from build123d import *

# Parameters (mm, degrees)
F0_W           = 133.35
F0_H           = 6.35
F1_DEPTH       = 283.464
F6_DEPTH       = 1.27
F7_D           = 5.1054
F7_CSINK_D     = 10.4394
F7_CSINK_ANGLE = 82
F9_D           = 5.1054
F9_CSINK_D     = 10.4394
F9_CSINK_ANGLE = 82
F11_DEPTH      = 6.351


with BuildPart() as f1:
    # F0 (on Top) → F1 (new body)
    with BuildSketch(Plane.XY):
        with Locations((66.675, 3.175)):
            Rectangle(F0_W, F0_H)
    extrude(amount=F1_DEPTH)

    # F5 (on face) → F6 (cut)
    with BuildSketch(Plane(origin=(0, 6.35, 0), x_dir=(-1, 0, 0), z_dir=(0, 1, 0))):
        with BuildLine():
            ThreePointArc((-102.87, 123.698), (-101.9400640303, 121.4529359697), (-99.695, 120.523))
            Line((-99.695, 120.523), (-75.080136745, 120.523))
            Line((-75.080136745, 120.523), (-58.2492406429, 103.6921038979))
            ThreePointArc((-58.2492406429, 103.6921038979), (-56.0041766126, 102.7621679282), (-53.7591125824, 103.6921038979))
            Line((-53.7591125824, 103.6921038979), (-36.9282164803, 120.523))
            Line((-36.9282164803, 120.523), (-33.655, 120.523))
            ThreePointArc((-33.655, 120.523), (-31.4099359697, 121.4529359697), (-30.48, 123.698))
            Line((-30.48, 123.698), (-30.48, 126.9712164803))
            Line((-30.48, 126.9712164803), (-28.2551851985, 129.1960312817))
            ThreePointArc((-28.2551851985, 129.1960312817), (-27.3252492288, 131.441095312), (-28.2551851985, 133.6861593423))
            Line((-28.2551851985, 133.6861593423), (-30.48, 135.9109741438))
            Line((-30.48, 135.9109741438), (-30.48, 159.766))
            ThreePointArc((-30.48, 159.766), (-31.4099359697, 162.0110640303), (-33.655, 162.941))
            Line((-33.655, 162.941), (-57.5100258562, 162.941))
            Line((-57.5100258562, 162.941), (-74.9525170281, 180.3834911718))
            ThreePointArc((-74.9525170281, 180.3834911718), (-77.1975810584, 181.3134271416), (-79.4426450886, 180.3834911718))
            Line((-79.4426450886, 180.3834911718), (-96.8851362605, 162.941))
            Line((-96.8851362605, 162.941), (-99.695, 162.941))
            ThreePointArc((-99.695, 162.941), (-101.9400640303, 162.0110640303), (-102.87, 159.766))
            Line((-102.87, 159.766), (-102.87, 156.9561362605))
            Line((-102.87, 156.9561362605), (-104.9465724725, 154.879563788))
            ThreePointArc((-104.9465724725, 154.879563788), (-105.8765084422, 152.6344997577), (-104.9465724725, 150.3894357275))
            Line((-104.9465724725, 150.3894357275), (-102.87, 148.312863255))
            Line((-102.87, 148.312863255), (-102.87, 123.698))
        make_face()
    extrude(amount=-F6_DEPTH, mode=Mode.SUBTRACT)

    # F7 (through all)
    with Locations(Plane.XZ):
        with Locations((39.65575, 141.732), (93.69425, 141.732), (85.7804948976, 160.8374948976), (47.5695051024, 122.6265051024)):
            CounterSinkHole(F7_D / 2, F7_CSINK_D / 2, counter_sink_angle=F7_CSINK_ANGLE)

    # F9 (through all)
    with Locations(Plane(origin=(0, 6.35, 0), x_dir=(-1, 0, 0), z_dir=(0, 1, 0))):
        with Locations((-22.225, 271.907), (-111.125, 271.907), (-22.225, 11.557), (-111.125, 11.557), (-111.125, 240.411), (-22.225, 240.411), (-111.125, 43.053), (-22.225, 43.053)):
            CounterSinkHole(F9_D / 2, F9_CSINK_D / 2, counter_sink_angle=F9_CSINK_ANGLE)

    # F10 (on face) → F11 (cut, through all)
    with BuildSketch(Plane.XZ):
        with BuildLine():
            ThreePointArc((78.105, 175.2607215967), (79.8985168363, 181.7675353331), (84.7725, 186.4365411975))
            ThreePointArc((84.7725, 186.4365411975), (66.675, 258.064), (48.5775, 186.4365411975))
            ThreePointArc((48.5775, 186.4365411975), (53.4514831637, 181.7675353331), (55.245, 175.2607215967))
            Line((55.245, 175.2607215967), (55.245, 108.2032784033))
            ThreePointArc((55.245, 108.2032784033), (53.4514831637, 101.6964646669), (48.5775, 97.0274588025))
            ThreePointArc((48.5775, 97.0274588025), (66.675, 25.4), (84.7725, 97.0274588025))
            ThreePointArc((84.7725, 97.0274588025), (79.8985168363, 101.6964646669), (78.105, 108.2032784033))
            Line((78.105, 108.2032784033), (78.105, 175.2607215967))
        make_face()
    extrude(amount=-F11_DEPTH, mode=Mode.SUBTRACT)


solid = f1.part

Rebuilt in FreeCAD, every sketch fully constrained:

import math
import FreeCAD as App
import Part
import Sketcher
Q = App.Units.Quantity

doc = App.newDocument("Part")
body = doc.addObject("PartDesign::Body", "Body")

sketch1 = body.newObject("Sketcher::SketchObject", "Sketch")
sketch1.AttachmentSupport = (doc.getObject("XY_Plane"), [""])
sketch1.MapMode = "FlatFace"
sketch1.addGeometry(Part.LineSegment(App.Vector(0, 6, 0), App.Vector(0, 0, 0)), False)
sketch1.addGeometry(Part.LineSegment(App.Vector(0, 0, 0), App.Vector(133, 0, 0)), False)
sketch1.addGeometry(Part.LineSegment(App.Vector(133, 0, 0), App.Vector(133, 6, 0)), False)
sketch1.addGeometry(Part.LineSegment(App.Vector(133, 6, 0), App.Vector(0, 6, 0)), False)
sketch1.addConstraint(Sketcher.Constraint("Coincident", 0, 2, 1, 1))
sketch1.addConstraint(Sketcher.Constraint("Coincident", 1, 2, 2, 1))
sketch1.addConstraint(Sketcher.Constraint("Coincident", 2, 2, 3, 1))
sketch1.addConstraint(Sketcher.Constraint("Coincident", 3, 2, 0, 1))
sketch1.addConstraint(Sketcher.Constraint("Vertical", 0))
sketch1.addConstraint(Sketcher.Constraint("Horizontal", 1))
sketch1.addConstraint(Sketcher.Constraint("Vertical", 2))
sketch1.addConstraint(Sketcher.Constraint("Horizontal", 3))
sketch1.addConstraint(Sketcher.Constraint("Coincident", 0, 2, -1, 1))
sketch1.addConstraint(Sketcher.Constraint("DistanceX", 1, 1, 1, 2, Q("5.25 in")))
sketch1.addConstraint(Sketcher.Constraint("DistanceY", 0, 2, 0, 1, Q("0.25 in")))
pad1 = body.newObject("PartDesign::Pad", "Pad")
pad1.Profile = sketch1
pad1.Length = Q("11.16 in")

sketch2 = body.newObject("Sketcher::SketchObject", "Sketch001")
sketch2.AttachmentSupport = (doc.getObject("XZ_Plane"), [""])
sketch2.MapMode = "FlatFace"
sketch2.AttachmentOffset = App.Placement(App.Vector(0, 0, -0.25 * 25.4), App.Rotation())
sketch2.addGeometry(Part.ArcOfCircle(Part.Circle(App.Vector(99.7, 123.7, 0), App.Vector(0, 0, 1), 3.2), math.radians(-90), math.radians(0)), False)
sketch2.addGeometry(Part.LineSegment(App.Vector(99.7, 120.5, 0), App.Vector(75.1, 120.5, 0)), False)
sketch2.addGeometry(Part.LineSegment(App.Vector(75.1, 120.5, 0), App.Vector(58.2, 103.7, 0)), False)
sketch2.addGeometry(Part.ArcOfCircle(Part.Circle(App.Vector(56, 105.9, 0), App.Vector(0, 0, 1), 3.2), math.radians(-135), math.radians(-45)), False)
sketch2.addGeometry(Part.LineSegment(App.Vector(53.8, 103.7, 0), App.Vector(36.9, 120.5, 0)), False)
sketch2.addGeometry(Part.LineSegment(App.Vector(36.9, 120.5, 0), App.Vector(33.7, 120.5, 0)), False)
sketch2.addGeometry(Part.ArcOfCircle(Part.Circle(App.Vector(33.7, 123.7, 0), App.Vector(0, 0, 1), 3.2), math.radians(180), math.radians(270)), False)
sketch2.addGeometry(Part.LineSegment(App.Vector(30.5, 123.7, 0), App.Vector(30.5, 127, 0)), False)
sketch2.addGeometry(Part.LineSegment(App.Vector(30.5, 127, 0), App.Vector(28.3, 129.2, 0)), False)
sketch2.addGeometry(Part.ArcOfCircle(Part.Circle(App.Vector(30.5, 131.4, 0), App.Vector(0, 0, 1), 3.2), math.radians(135), math.radians(225)), False)
sketch2.addGeometry(Part.LineSegment(App.Vector(28.3, 133.7, 0), App.Vector(30.5, 135.9, 0)), False)
sketch2.addGeometry(Part.LineSegment(App.Vector(30.5, 135.9, 0), App.Vector(30.5, 159.8, 0)), False)
sketch2.addGeometry(Part.ArcOfCircle(Part.Circle(App.Vector(33.7, 159.8, 0), App.Vector(0, 0, 1), 3.2), math.radians(90), math.radians(180)), False)
sketch2.addGeometry(Part.LineSegment(App.Vector(33.7, 162.9, 0), App.Vector(57.5, 162.9, 0)), False)
sketch2.addGeometry(Part.LineSegment(App.Vector(57.5, 162.9, 0), App.Vector(75, 180.4, 0)), False)
sketch2.addGeometry(Part.ArcOfCircle(Part.Circle(App.Vector(77.2, 178.1, 0), App.Vector(0, 0, 1), 3.2), math.radians(45), math.radians(135)), False)
sketch2.addGeometry(Part.LineSegment(App.Vector(79.4, 180.4, 0), App.Vector(96.9, 162.9, 0)), False)
sketch2.addGeometry(Part.LineSegment(App.Vector(96.9, 162.9, 0), App.Vector(99.7, 162.9, 0)), False)
sketch2.addGeometry(Part.ArcOfCircle(Part.Circle(App.Vector(99.7, 159.8, 0), App.Vector(0, 0, 1), 3.2), math.radians(0), math.radians(90)), False)
sketch2.addGeometry(Part.LineSegment(App.Vector(102.9, 159.8, 0), App.Vector(102.9, 157, 0)), False)
sketch2.addGeometry(Part.LineSegment(App.Vector(102.9, 157, 0), App.Vector(104.9, 154.9, 0)), False)
sketch2.addGeometry(Part.ArcOfCircle(Part.Circle(App.Vector(102.7, 152.6, 0), App.Vector(0, 0, 1), 3.2), math.radians(-45), math.radians(45)), False)
sketch2.addGeometry(Part.LineSegment(App.Vector(104.9, 150.4, 0), App.Vector(102.9, 148.3, 0)), False)
sketch2.addGeometry(Part.LineSegment(App.Vector(102.9, 148.3, 0), App.Vector(102.9, 123.7, 0)), False)
sketch2.addConstraint(Sketcher.Constraint("Tangent", 0, 1, 1, 1))
sketch2.addConstraint(Sketcher.Constraint("Coincident", 1, 2, 2, 1))
sketch2.addConstraint(Sketcher.Constraint("Tangent", 2, 2, 3, 2))
sketch2.addConstraint(Sketcher.Constraint("Tangent", 3, 1, 4, 1))
sketch2.addConstraint(Sketcher.Constraint("Coincident", 4, 2, 5, 1))
sketch2.addConstraint(Sketcher.Constraint("Tangent", 5, 2, 6, 2))
sketch2.addConstraint(Sketcher.Constraint("Tangent", 6, 1, 7, 1))
sketch2.addConstraint(Sketcher.Constraint("Coincident", 7, 2, 8, 1))
sketch2.addConstraint(Sketcher.Constraint("Tangent", 8, 2, 9, 2))
sketch2.addConstraint(Sketcher.Constraint("Tangent", 9, 1, 10, 1))
sketch2.addConstraint(Sketcher.Constraint("Coincident", 10, 2, 11, 1))
sketch2.addConstraint(Sketcher.Constraint("Tangent", 11, 2, 12, 2))
sketch2.addConstraint(Sketcher.Constraint("Tangent", 12, 1, 13, 1))
sketch2.addConstraint(Sketcher.Constraint("Coincident", 13, 2, 14, 1))
sketch2.addConstraint(Sketcher.Constraint("Tangent", 14, 2, 15, 2))
sketch2.addConstraint(Sketcher.Constraint("Tangent", 15, 1, 16, 1))
sketch2.addConstraint(Sketcher.Constraint("Coincident", 16, 2, 17, 1))
sketch2.addConstraint(Sketcher.Constraint("Tangent", 17, 2, 18, 2))
sketch2.addConstraint(Sketcher.Constraint("Tangent", 18, 1, 19, 1))
sketch2.addConstraint(Sketcher.Constraint("Coincident", 19, 2, 20, 1))
sketch2.addConstraint(Sketcher.Constraint("Tangent", 20, 2, 21, 2))
sketch2.addConstraint(Sketcher.Constraint("Tangent", 21, 1, 22, 1))
sketch2.addConstraint(Sketcher.Constraint("Coincident", 22, 2, 23, 1))
sketch2.addConstraint(Sketcher.Constraint("Tangent", 23, 2, 0, 2))
sketch2.addConstraint(Sketcher.Constraint("Horizontal", 1))
sketch2.addConstraint(Sketcher.Constraint("Horizontal", 5))
sketch2.addConstraint(Sketcher.Constraint("Vertical", 7))
sketch2.addConstraint(Sketcher.Constraint("Vertical", 11))
sketch2.addConstraint(Sketcher.Constraint("Horizontal", 13))
sketch2.addConstraint(Sketcher.Constraint("Horizontal", 17))
sketch2.addConstraint(Sketcher.Constraint("Vertical", 19))
sketch2.addConstraint(Sketcher.Constraint("Vertical", 23))
sketch2.addConstraint(Sketcher.Constraint("Equal", 0, 3))
sketch2.addConstraint(Sketcher.Constraint("Equal", 3, 6))
sketch2.addConstraint(Sketcher.Constraint("Equal", 6, 9))
sketch2.addConstraint(Sketcher.Constraint("Equal", 9, 12))
sketch2.addConstraint(Sketcher.Constraint("Equal", 12, 15))
sketch2.addConstraint(Sketcher.Constraint("Equal", 15, 18))
sketch2.addConstraint(Sketcher.Constraint("Equal", 18, 21))
sketch2.addConstraint(Sketcher.Constraint("Perpendicular", 2, 4))
sketch2.addConstraint(Sketcher.Constraint("Parallel", 4, 8))
sketch2.addConstraint(Sketcher.Constraint("Perpendicular", 8, 10))
sketch2.addConstraint(Sketcher.Constraint("Parallel", 10, 14))
sketch2.addConstraint(Sketcher.Constraint("Perpendicular", 14, 16))
sketch2.addConstraint(Sketcher.Constraint("Parallel", 16, 20))
sketch2.addConstraint(Sketcher.Constraint("Perpendicular", 20, 22))
sketch2.addConstraint(Sketcher.Constraint("Horizontal", 0, 3, 6, 3))
sketch2.addConstraint(Sketcher.Constraint("Horizontal", 12, 3, 18, 3))
sketch2.addConstraint(Sketcher.Constraint("Horizontal", 2, 2, 3, 1))
sketch2.addConstraint(Sketcher.Constraint("Vertical", 6, 3, 12, 3))
sketch2.addConstraint(Sketcher.Constraint("Vertical", 0, 3, 18, 3))
sketch2.addConstraint(Sketcher.Constraint("Equal", 5, 7))
sketch2.addConstraint(Sketcher.Constraint("Equal", 13, 11))
sketch2.addConstraint(Sketcher.Constraint("Equal", 17, 19))
sketch2.addConstraint(Sketcher.Constraint("Equal", 1, 23))
sketch2.addConstraint(Sketcher.Constraint("Radius", 0, Q("0.125 in")))
sketch2.addConstraint(Sketcher.Constraint("DistanceX", -1, 1, 6, 1, Q("1.2 in")))
sketch2.addConstraint(Sketcher.Constraint("DistanceX", 6, 3, 0, 3, Q("2.6 in")))
sketch2.addConstraint(Sketcher.Constraint("DistanceY", -1, 1, 0, 3, Q("4.87 in")))
sketch2.addConstraint(Sketcher.Constraint("DistanceY", -1, 1, 12, 3, Q("6.29 in")))
sketch2.addConstraint(Sketcher.Constraint("DistanceY", -1, 1, 21, 3, 152.6345))
sketch2.addConstraint(Sketcher.Constraint("DistanceY", 21, 1, 19, 2, 6.566701))
sketch2.addConstraint(Sketcher.Constraint("Distance", 2, 23.802482))
sketch2.addConstraint(Sketcher.Constraint("DistanceX", 13, 1, 13, 2, 23.855026))
pocket1 = body.newObject("PartDesign::Pocket", "Pocket")
pocket1.Profile = sketch2
pocket1.Length = Q("0.05 in")
pocket1.Reversed = True

sketch3 = body.newObject("Sketcher::SketchObject", "Sketch002")
sketch3.AttachmentSupport = (doc.getObject("XZ_Plane"), [""])
sketch3.MapMode = "FlatFace"
sketch3.addGeometry(Part.Circle(App.Vector(39.7, 141.7, 0), App.Vector(0, 0, 1), 2.6), False)
sketch3.addGeometry(Part.Circle(App.Vector(93.7, 141.7, 0), App.Vector(0, 0, 1), 2.6), False)
sketch3.addGeometry(Part.Circle(App.Vector(85.8, 160.8, 0), App.Vector(0, 0, 1), 2.6), False)
sketch3.addGeometry(Part.Circle(App.Vector(47.6, 122.6, 0), App.Vector(0, 0, 1), 2.6), False)
sketch3.addConstraint(Sketcher.Constraint("Equal", 0, 1))
sketch3.addConstraint(Sketcher.Constraint("Equal", 1, 2))
sketch3.addConstraint(Sketcher.Constraint("Equal", 2, 3))
sketch3.addConstraint(Sketcher.Constraint("Horizontal", 0, 3, 1, 3))
sketch3.addConstraint(Sketcher.Constraint("Diameter", 0, Q("0.201 in")))
sketch3.addConstraint(Sketcher.Constraint("DistanceY", -1, 1, 0, 3, Q("5.58 in")))
sketch3.addConstraint(Sketcher.Constraint("DistanceX", 0, 3, 1, 3, Q("2.1275 in")))
sketch3.addConstraint(Sketcher.Constraint("DistanceX", -1, 1, 0, 3, 39.65575))
sketch3.addConstraint(Sketcher.Constraint("DistanceX", 3, 3, 2, 3, 38.21099))
sketch3.addConstraint(Sketcher.Constraint("DistanceY", 3, 3, 2, 3, 38.21099))
sketch3.addConstraint(Sketcher.Constraint("DistanceX", -1, 1, 2, 3, 85.780495))
sketch3.addConstraint(Sketcher.Constraint("DistanceY", -1, 1, 2, 3, 160.837495))
doc.recompute()
hole = body.newObject("PartDesign::Hole", "Hole")
hole.Profile = sketch3
hole.ThreadType = "None"
hole.Diameter = Q("0.201 in")
hole.DepthType = "ThroughAll"
hole.HoleCutType = "Countersink"
hole.HoleCutDiameter = Q("0.411 in")
hole.HoleCutCountersinkAngle = 82

sketch4 = body.newObject("Sketcher::SketchObject", "Sketch003")
sketch4.AttachmentSupport = (doc.getObject("XZ_Plane"), [""])
sketch4.MapMode = "FlatFace"
sketch4.AttachmentOffset = App.Placement(App.Vector(0, 0, -0.25 * 25.4), App.Rotation())
sketch4.addGeometry(Part.Circle(App.Vector(22.2, 271.9, 0), App.Vector(0, 0, 1), 2.6), False)
sketch4.addGeometry(Part.Circle(App.Vector(111.1, 271.9, 0), App.Vector(0, 0, 1), 2.6), False)
sketch4.addGeometry(Part.Circle(App.Vector(22.2, 11.6, 0), App.Vector(0, 0, 1), 2.6), False)
sketch4.addGeometry(Part.Circle(App.Vector(111.1, 11.6, 0), App.Vector(0, 0, 1), 2.6), False)
sketch4.addGeometry(Part.Circle(App.Vector(111.1, 240.4, 0), App.Vector(0, 0, 1), 2.6), False)
sketch4.addGeometry(Part.Circle(App.Vector(22.2, 240.4, 0), App.Vector(0, 0, 1), 2.6), False)
sketch4.addGeometry(Part.Circle(App.Vector(111.1, 43.1, 0), App.Vector(0, 0, 1), 2.6), False)
sketch4.addGeometry(Part.Circle(App.Vector(22.2, 43.1, 0), App.Vector(0, 0, 1), 2.6), False)
sketch4.addConstraint(Sketcher.Constraint("Equal", 0, 1))
sketch4.addConstraint(Sketcher.Constraint("Equal", 1, 2))
sketch4.addConstraint(Sketcher.Constraint("Equal", 2, 3))
sketch4.addConstraint(Sketcher.Constraint("Equal", 3, 4))
sketch4.addConstraint(Sketcher.Constraint("Equal", 4, 5))
sketch4.addConstraint(Sketcher.Constraint("Equal", 5, 6))
sketch4.addConstraint(Sketcher.Constraint("Equal", 6, 7))
sketch4.addConstraint(Sketcher.Constraint("Horizontal", 0, 3, 1, 3))
sketch4.addConstraint(Sketcher.Constraint("Horizontal", 2, 3, 3, 3))
sketch4.addConstraint(Sketcher.Constraint("Horizontal", 4, 3, 5, 3))
sketch4.addConstraint(Sketcher.Constraint("Horizontal", 6, 3, 7, 3))
sketch4.addConstraint(Sketcher.Constraint("Vertical", 0, 3, 2, 3))
sketch4.addConstraint(Sketcher.Constraint("Vertical", 1, 3, 3, 3))
sketch4.addConstraint(Sketcher.Constraint("Vertical", 3, 3, 4, 3))
sketch4.addConstraint(Sketcher.Constraint("Vertical", 2, 3, 5, 3))
sketch4.addConstraint(Sketcher.Constraint("Vertical", 4, 3, 6, 3))
sketch4.addConstraint(Sketcher.Constraint("Vertical", 5, 3, 7, 3))
sketch4.addConstraint(Sketcher.Constraint("Diameter", 0, Q("0.201 in")))
sketch4.addConstraint(Sketcher.Constraint("DistanceX", 0, 3, 1, 3, Q("3.5 in")))
sketch4.addConstraint(Sketcher.Constraint("DistanceY", 2, 3, 0, 3, Q("10.25 in")))
sketch4.addConstraint(Sketcher.Constraint("DistanceY", 4, 3, 1, 3, Q("1.24 in")))
sketch4.addConstraint(Sketcher.Constraint("DistanceY", 3, 3, 6, 3, Q("1.24 in")))
sketch4.addConstraint(Sketcher.Constraint("DistanceX", -1, 1, 0, 3, Q("0.875 in")))
sketch4.addConstraint(Sketcher.Constraint("DistanceY", -1, 1, 0, 3, Q("10.705 in")))
doc.recompute()
hole2 = body.newObject("PartDesign::Hole", "Hole001")
hole2.Profile = sketch4
hole2.ThreadType = "None"
hole2.Diameter = Q("0.201 in")
hole2.DepthType = "ThroughAll"
hole2.HoleCutType = "Countersink"
hole2.HoleCutDiameter = Q("0.411 in")
hole2.HoleCutCountersinkAngle = 82
hole2.Reversed = True

sketch5 = body.newObject("Sketcher::SketchObject", "Sketch004")
sketch5.AttachmentSupport = (doc.getObject("XZ_Plane"), [""])
sketch5.MapMode = "FlatFace"
sketch5.addGeometry(Part.ArcOfCircle(Part.Circle(App.Vector(91, 175, 0), App.Vector(0, 0, 1), 13), math.radians(118), math.radians(180)), False)
sketch5.addGeometry(Part.ArcOfCircle(Part.Circle(App.Vector(67, 220, 0), App.Vector(0, 0, 1), 38), math.radians(-62), math.radians(242)), False)
sketch5.addGeometry(Part.ArcOfCircle(Part.Circle(App.Vector(43, 175, 0), App.Vector(0, 0, 1), 13), math.radians(0), math.radians(62)), False)
sketch5.addGeometry(Part.LineSegment(App.Vector(55, 175, 0), App.Vector(55, 108, 0)), False)
sketch5.addGeometry(Part.ArcOfCircle(Part.Circle(App.Vector(43, 108, 0), App.Vector(0, 0, 1), 13), math.radians(-62), math.radians(0)), False)
sketch5.addGeometry(Part.ArcOfCircle(Part.Circle(App.Vector(67, 64, 0), App.Vector(0, 0, 1), 38), math.radians(118), math.radians(422)), False)
sketch5.addGeometry(Part.ArcOfCircle(Part.Circle(App.Vector(91, 108, 0), App.Vector(0, 0, 1), 13), math.radians(180), math.radians(242)), False)
sketch5.addGeometry(Part.LineSegment(App.Vector(78, 108, 0), App.Vector(78, 175, 0)), False)
sketch5.addConstraint(Sketcher.Constraint("Tangent", 0, 1, 1, 1))
sketch5.addConstraint(Sketcher.Constraint("Tangent", 1, 2, 2, 2))
sketch5.addConstraint(Sketcher.Constraint("Tangent", 2, 1, 3, 1))
sketch5.addConstraint(Sketcher.Constraint("Tangent", 3, 2, 4, 2))
sketch5.addConstraint(Sketcher.Constraint("Tangent", 4, 1, 5, 1))
sketch5.addConstraint(Sketcher.Constraint("Tangent", 5, 2, 6, 2))
sketch5.addConstraint(Sketcher.Constraint("Tangent", 6, 1, 7, 1))
sketch5.addConstraint(Sketcher.Constraint("Tangent", 7, 2, 0, 2))
sketch5.addConstraint(Sketcher.Constraint("Vertical", 3))
sketch5.addConstraint(Sketcher.Constraint("Vertical", 7))
sketch5.addConstraint(Sketcher.Constraint("Equal", 0, 2))
sketch5.addConstraint(Sketcher.Constraint("Equal", 2, 4))
sketch5.addConstraint(Sketcher.Constraint("Equal", 1, 5))
sketch5.addConstraint(Sketcher.Constraint("Equal", 4, 6))
sketch5.addConstraint(Sketcher.Constraint("Horizontal", 0, 3, 2, 3))
sketch5.addConstraint(Sketcher.Constraint("Horizontal", 4, 3, 6, 3))
sketch5.addConstraint(Sketcher.Constraint("Radius", 0, Q("0.5 in")))
sketch5.addConstraint(Sketcher.Constraint("Radius", 1, Q("1.5 in")))
sketch5.addConstraint(Sketcher.Constraint("DistanceY", -1, 1, 5, 3, Q("2.5 in")))
sketch5.addConstraint(Sketcher.Constraint("DistanceX", 2, 3, 0, 3, Q("1.9 in")))
sketch5.addConstraint(Sketcher.Constraint("DistanceY", -1, 1, 1, 3, Q("8.66 in")))
sketch5.addConstraint(Sketcher.Constraint("DistanceX", -1, 1, 0, 3, Q("3.575 in")))
pocket2 = body.newObject("PartDesign::Pocket", "Pocket001")
pocket2.Profile = sketch5
pocket2.Type = "ThroughAll"

doc.recompute()
